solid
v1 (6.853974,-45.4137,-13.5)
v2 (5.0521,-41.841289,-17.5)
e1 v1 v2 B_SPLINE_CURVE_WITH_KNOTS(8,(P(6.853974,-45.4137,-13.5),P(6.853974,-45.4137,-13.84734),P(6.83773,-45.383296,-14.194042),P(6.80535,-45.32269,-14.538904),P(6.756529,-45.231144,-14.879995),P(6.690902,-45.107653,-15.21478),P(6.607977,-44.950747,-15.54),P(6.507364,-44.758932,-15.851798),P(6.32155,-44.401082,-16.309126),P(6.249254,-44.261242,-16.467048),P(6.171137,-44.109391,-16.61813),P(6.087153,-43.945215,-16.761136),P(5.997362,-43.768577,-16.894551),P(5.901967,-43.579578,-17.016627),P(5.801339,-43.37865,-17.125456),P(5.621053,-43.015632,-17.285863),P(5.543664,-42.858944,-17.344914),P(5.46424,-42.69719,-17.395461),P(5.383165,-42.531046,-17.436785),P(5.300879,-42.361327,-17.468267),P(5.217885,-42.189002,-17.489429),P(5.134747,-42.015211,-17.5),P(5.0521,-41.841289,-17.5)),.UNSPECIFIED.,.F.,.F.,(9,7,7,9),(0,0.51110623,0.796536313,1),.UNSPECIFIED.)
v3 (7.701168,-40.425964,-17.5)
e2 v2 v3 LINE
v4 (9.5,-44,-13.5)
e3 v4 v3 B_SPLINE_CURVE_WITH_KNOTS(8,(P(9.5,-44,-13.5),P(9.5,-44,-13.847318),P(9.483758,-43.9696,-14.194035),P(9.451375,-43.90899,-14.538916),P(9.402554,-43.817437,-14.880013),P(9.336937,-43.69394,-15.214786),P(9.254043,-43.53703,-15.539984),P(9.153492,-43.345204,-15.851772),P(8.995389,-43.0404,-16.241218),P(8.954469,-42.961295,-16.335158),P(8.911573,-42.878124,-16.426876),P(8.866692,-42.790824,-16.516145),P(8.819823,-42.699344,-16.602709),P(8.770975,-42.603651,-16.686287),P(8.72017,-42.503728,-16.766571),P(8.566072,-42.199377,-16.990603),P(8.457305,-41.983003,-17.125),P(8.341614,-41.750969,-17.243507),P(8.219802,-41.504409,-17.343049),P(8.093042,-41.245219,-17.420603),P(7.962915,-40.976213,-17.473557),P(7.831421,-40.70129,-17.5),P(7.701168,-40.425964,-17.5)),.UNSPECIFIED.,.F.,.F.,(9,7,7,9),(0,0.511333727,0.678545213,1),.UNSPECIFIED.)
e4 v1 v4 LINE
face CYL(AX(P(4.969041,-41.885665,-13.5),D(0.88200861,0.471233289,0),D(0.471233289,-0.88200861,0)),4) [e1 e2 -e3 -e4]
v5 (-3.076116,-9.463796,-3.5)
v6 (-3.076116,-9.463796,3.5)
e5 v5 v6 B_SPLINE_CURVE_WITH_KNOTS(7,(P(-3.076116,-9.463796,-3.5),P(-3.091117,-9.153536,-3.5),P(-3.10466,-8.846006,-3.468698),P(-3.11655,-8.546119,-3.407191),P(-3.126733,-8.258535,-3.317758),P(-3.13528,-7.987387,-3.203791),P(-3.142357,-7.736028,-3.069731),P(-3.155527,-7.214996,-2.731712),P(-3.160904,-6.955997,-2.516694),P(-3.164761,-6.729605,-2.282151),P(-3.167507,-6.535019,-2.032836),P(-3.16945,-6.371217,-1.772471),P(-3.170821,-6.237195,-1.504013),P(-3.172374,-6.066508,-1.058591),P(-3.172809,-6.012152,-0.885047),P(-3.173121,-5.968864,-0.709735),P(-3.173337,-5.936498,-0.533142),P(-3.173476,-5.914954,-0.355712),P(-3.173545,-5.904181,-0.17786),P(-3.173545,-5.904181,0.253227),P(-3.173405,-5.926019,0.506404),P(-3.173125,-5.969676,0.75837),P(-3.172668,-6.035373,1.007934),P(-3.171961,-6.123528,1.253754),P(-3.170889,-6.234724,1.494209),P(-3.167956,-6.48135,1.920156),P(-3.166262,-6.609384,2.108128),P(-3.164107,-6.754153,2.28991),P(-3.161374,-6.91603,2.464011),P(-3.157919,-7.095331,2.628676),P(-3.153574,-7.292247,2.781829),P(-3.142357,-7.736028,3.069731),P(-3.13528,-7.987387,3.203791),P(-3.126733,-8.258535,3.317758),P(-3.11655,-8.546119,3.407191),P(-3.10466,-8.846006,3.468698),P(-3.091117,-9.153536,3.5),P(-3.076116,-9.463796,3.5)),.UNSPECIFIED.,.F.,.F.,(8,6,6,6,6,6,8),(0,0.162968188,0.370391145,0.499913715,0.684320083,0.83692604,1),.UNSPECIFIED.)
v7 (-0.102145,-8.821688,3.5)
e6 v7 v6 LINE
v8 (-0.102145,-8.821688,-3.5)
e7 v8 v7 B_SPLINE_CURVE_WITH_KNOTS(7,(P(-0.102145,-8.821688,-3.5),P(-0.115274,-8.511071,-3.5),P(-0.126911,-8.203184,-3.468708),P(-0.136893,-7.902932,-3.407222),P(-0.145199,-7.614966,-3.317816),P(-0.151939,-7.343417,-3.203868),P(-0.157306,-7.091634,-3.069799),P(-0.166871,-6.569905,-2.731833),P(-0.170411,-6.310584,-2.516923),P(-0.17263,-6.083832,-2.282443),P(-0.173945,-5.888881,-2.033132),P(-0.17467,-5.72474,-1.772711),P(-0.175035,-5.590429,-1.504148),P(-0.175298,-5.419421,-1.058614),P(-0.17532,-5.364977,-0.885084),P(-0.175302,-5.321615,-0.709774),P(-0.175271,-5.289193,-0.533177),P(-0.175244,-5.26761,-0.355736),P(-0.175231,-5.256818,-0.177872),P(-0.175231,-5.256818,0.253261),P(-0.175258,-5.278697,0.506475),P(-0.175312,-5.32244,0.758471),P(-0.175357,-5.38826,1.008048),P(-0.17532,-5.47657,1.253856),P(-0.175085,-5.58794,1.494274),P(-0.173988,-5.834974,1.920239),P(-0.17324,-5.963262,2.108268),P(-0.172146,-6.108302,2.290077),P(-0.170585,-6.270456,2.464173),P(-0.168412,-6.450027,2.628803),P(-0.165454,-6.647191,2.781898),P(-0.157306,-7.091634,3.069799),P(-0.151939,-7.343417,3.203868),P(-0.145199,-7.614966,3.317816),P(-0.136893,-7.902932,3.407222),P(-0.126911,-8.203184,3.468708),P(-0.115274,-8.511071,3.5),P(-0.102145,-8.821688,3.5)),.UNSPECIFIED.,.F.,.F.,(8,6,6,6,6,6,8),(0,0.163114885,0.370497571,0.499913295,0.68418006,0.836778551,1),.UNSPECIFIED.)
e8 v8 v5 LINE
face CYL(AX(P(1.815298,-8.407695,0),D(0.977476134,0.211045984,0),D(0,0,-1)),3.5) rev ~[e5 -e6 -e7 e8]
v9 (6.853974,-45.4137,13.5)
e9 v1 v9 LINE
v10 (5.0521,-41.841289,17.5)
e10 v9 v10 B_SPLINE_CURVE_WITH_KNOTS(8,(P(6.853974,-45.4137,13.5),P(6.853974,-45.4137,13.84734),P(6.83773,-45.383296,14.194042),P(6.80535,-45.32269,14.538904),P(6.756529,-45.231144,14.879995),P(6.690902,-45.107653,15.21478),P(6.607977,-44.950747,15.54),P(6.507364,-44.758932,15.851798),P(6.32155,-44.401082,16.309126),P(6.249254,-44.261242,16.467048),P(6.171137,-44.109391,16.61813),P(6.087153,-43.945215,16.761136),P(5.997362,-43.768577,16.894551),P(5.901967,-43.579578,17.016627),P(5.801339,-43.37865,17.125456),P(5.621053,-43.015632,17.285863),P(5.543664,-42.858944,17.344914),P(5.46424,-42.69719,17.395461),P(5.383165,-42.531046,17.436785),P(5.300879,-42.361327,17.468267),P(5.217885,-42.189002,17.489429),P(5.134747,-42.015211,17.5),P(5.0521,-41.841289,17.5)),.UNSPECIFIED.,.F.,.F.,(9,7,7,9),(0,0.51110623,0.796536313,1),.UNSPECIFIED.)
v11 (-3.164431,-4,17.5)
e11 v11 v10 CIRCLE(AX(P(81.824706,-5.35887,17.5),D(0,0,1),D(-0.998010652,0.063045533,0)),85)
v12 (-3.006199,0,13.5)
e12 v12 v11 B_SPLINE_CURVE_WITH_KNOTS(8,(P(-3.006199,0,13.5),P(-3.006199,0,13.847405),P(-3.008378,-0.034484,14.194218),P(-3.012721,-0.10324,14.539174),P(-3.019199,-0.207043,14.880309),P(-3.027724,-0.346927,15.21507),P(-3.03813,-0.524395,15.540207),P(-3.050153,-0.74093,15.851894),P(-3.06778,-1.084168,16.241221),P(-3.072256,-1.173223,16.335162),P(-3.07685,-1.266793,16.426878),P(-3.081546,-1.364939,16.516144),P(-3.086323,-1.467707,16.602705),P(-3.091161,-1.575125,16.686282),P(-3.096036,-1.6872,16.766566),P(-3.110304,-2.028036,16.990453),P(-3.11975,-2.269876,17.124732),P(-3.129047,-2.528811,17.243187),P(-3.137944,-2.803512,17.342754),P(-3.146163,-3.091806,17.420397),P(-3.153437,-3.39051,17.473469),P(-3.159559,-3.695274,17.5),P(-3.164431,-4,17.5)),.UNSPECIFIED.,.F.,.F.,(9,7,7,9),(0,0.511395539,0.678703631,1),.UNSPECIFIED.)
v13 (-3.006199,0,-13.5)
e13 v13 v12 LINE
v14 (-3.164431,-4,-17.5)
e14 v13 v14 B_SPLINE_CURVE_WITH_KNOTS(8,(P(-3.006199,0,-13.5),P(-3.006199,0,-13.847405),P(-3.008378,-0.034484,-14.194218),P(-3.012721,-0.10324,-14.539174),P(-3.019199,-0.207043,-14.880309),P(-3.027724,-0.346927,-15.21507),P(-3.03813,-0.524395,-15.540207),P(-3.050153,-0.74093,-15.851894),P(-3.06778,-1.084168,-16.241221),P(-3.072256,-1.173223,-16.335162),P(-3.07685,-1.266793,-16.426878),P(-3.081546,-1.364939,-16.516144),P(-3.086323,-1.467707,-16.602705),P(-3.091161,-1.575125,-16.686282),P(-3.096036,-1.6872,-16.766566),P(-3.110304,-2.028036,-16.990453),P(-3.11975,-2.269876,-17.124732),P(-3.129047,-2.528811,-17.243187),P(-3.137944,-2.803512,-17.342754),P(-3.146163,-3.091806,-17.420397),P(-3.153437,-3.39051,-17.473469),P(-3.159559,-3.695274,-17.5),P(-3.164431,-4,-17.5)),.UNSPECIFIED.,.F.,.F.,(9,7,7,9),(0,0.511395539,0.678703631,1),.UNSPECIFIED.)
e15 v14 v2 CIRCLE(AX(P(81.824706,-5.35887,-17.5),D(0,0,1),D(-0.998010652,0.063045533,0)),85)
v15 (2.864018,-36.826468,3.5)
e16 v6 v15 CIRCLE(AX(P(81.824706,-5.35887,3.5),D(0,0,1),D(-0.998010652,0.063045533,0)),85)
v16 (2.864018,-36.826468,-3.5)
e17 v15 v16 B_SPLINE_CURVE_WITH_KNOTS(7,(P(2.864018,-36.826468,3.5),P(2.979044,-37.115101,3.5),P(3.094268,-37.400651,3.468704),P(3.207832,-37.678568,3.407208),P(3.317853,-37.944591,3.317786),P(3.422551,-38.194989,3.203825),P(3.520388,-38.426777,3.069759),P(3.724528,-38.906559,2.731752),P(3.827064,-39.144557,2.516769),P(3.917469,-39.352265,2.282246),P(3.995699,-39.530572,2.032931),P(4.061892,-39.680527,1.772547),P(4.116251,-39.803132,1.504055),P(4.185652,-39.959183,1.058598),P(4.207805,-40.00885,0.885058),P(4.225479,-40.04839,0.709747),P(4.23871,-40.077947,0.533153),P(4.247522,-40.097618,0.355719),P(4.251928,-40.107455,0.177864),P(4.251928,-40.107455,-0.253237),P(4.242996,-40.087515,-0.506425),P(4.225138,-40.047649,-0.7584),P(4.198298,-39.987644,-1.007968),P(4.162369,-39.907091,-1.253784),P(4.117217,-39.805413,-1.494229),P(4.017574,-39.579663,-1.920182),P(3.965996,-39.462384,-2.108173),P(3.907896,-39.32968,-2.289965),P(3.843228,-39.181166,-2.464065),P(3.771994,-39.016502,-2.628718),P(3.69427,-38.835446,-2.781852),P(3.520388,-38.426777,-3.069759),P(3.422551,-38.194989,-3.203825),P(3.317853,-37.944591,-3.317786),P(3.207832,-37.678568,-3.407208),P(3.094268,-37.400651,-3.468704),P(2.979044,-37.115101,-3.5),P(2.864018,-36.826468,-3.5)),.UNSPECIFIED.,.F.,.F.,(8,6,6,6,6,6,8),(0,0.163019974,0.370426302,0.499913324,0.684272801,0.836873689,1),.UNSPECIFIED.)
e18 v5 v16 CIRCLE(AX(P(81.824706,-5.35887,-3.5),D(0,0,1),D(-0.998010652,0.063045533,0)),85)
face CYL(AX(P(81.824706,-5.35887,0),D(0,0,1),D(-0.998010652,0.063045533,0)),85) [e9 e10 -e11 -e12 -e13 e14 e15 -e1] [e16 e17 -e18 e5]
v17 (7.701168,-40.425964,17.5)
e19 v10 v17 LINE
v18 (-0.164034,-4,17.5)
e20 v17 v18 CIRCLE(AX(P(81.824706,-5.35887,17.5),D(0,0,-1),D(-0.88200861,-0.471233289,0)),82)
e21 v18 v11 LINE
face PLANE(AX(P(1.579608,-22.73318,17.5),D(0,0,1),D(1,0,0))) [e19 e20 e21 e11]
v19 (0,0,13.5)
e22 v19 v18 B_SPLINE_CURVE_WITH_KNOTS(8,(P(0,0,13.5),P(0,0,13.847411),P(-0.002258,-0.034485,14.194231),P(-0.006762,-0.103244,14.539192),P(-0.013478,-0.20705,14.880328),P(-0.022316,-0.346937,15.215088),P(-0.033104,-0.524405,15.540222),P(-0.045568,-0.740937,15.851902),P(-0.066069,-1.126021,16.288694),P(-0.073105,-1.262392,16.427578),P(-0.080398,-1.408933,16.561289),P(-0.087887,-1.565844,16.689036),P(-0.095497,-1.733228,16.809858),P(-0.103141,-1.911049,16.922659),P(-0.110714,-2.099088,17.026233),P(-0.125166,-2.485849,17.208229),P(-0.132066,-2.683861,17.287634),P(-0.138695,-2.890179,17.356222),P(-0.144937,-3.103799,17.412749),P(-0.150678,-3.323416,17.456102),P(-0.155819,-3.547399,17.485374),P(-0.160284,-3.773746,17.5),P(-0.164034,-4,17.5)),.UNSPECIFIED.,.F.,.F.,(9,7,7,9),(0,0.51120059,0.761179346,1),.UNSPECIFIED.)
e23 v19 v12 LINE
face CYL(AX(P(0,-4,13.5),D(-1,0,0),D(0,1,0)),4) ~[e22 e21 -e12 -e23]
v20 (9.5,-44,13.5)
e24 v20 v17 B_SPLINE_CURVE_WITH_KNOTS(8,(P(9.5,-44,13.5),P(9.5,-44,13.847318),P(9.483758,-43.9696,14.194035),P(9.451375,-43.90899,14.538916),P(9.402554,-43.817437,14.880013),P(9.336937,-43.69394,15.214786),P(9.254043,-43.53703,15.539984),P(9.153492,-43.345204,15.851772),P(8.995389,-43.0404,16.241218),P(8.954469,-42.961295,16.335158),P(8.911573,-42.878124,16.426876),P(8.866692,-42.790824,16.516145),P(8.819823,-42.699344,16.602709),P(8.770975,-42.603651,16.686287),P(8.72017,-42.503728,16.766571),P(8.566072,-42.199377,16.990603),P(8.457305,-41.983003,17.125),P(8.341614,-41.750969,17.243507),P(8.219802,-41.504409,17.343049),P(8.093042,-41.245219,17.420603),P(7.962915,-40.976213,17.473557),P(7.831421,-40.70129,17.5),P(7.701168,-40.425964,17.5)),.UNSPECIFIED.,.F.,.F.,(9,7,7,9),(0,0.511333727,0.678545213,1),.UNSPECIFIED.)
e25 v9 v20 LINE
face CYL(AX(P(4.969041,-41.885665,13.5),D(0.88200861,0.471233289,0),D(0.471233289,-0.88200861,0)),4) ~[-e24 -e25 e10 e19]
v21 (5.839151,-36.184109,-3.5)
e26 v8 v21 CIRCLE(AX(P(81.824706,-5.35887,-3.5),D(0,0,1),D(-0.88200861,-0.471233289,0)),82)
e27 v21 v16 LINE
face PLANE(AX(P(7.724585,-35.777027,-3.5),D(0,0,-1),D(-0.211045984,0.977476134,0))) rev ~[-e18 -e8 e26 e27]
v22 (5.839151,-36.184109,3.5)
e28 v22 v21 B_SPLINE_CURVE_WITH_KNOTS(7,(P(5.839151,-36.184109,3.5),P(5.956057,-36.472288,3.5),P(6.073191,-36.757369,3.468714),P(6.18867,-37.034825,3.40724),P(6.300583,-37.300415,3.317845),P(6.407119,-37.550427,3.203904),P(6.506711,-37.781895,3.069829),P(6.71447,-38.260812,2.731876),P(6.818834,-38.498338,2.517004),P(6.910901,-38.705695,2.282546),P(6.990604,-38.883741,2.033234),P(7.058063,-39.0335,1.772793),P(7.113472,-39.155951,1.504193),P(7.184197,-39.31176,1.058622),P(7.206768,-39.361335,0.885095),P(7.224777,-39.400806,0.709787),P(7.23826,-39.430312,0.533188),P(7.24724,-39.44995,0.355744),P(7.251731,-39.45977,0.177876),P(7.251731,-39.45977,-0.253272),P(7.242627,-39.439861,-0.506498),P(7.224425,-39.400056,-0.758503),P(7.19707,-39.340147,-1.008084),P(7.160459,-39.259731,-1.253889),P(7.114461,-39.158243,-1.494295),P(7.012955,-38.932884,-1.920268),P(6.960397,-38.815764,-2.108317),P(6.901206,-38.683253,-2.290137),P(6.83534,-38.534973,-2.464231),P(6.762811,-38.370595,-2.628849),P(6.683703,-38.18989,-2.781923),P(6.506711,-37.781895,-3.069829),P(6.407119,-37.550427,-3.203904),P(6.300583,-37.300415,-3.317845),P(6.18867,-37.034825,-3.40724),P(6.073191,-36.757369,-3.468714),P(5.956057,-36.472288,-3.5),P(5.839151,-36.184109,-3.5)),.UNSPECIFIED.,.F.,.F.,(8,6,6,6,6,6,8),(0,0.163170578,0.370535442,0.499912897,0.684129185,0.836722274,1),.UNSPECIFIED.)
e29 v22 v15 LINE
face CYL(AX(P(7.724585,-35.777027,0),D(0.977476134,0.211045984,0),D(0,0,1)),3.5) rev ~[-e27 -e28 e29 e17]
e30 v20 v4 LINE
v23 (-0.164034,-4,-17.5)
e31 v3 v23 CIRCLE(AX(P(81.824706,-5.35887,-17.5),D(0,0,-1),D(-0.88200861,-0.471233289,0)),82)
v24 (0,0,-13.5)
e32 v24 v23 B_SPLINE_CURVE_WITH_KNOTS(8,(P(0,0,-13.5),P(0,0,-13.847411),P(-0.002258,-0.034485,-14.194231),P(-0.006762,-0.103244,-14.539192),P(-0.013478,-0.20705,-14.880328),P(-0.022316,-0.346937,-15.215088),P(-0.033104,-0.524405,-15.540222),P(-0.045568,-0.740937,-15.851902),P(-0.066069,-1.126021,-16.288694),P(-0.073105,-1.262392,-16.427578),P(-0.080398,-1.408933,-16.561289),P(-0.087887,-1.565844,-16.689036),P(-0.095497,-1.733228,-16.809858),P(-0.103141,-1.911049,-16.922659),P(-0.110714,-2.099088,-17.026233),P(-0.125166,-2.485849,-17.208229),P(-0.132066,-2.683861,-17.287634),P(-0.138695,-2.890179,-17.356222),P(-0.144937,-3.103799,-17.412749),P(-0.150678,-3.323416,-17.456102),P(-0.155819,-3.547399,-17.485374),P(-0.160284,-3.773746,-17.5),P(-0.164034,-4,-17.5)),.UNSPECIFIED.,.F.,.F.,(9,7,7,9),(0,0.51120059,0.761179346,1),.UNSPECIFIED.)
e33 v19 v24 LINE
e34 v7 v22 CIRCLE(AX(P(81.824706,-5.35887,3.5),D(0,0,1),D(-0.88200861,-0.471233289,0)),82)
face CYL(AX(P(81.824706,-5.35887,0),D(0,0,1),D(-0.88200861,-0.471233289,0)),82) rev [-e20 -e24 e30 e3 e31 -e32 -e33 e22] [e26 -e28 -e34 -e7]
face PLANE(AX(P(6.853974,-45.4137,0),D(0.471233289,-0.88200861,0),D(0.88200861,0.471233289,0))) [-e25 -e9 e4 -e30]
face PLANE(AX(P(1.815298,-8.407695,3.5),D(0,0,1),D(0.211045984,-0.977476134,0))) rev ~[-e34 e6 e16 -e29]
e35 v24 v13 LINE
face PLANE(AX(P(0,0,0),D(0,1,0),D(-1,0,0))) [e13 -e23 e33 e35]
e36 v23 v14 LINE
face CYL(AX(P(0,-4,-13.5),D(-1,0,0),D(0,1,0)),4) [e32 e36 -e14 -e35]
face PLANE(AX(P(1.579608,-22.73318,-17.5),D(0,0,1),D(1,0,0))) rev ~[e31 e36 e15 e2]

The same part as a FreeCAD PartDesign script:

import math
import FreeCAD as App
import Part
import Sketcher


def edges_at(feature, points):
    """Names of the edges that pass closest to the given points."""
    edges = feature.Shape.Edges
    near = lambda p: min(range(len(edges)), key=lambda i: edges[i].distToShape(Part.Vertex(*p))[0])
    return sorted({f"Edge{near(p) + 1}" for p in points})

doc = App.newDocument("Part")
body = doc.addObject("PartDesign::Body", "Body")

# Sketch on XY plane
sketch1 = body.newObject("Sketcher::SketchObject", "Sketch")
sketch1.AttachmentSupport = (doc.getObject("XY_Plane"), [""])
sketch1.MapMode = "FlatFace"
sketch1.addGeometry(Part.LineSegment(App.Vector(0, 0, 0), App.Vector(-3, 0, 0)), False)
sketch1.addGeometry(Part.ArcOfCircle(Part.Circle(App.Vector(81.8, -5.4, 0), App.Vector(0, 0, 1), 85), math.radians(176), math.radians(208)), False)
sketch1.addGeometry(Part.LineSegment(App.Vector(6.9, -45.4, 0), App.Vector(9.5, -44, 0)), False)
sketch1.addGeometry(Part.ArcOfCircle(Part.Circle(App.Vector(81.8, -5.4, 0), App.Vector(0, 0, 1), 82), math.radians(176), math.radians(208)), False)
sketch1.addConstraint(Sketcher.Constraint("Coincident", 0, 2, 1, 1))
sketch1.addConstraint(Sketcher.Constraint("Coincident", 1, 2, 2, 1))
sketch1.addConstraint(Sketcher.Constraint("Coincident", 2, 2, 3, 2))
sketch1.addConstraint(Sketcher.Constraint("Coincident", 3, 1, 0, 1))
sketch1.addConstraint(Sketcher.Constraint("Horizontal", 0))
sketch1.addConstraint(Sketcher.Constraint("Coincident", 3, 1, -1, 1))
sketch1.addConstraint(Sketcher.Constraint("Coincident", 3, 3, 1, 3))
sketch1.addConstraint(Sketcher.Constraint("Radius", 1, 85.0))
sketch1.addConstraint(Sketcher.Constraint("Radius", 3, 82.0))
sketch1.addConstraint(Sketcher.Constraint("DistanceY", 2, 2, -1, 1, 44.0))
sketch1.addConstraint(Sketcher.Constraint("DistanceX", -1, 1, 2, 2, 9.5))
sketch1.addConstraint(Sketcher.Constraint("DistanceY", 1, 2, -1, 1, 45.4137))
pad1 = body.newObject("PartDesign::Pad", "Pad")
pad1.Profile = sketch1
pad1.Length = 35
pad1.Midplane = True
doc.recompute()

fillet = body.newObject("PartDesign::Fillet", "Fillet")
fillet.Base = (pad1, edges_at(pad1, [
    (-1.503, 0, 17.5),
    (-1.503, 0, -17.5),
    (8.177, -44.707, -17.5),
    (8.177, -44.707, 17.5),
]))
fillet.Radius = 4

# Sketch on an angled plane
sketch2 = body.newObject("Sketcher::SketchObject", "Sketch001")
sketch2.Placement = App.Placement(App.Vector(0, 0, 0), App.Rotation(App.Vector(0, 0, 1), App.Vector(-0.211045984, 0.977476134, 0), App.Vector(-0.977476134, -0.211045984, 0), "ZXY"))
sketch2.addGeometry(Part.LineSegment(App.Vector(-3.5, -8.6, 0), App.Vector(-3.5, -36.6, 0)), False)
sketch2.addGeometry(Part.ArcOfCircle(Part.Circle(App.Vector(0, -36.6, 0), App.Vector(0, 0, 1), 3.5), math.radians(180), math.radians(360)), False)
sketch2.addGeometry(Part.LineSegment(App.Vector(3.5, -36.6, 0), App.Vector(3.5, -8.6, 0)), False)
sketch2.addGeometry(Part.ArcOfCircle(Part.Circle(App.Vector(0, -8.6, 0), App.Vector(0, 0, 1), 3.5), math.radians(0), math.radians(180)), False)
sketch2.addConstraint(Sketcher.Constraint("Tangent", 0, 2, 1, 1))
sketch2.addConstraint(Sketcher.Constraint("Tangent", 1, 2, 2, 1))
sketch2.addConstraint(Sketcher.Constraint("Tangent", 2, 2, 3, 1))
sketch2.addConstraint(Sketcher.Constraint("Tangent", 3, 2, 0, 1))
sketch2.addConstraint(Sketcher.Constraint("Vertical", 0))
sketch2.addConstraint(Sketcher.Constraint("Vertical", 2))
sketch2.addConstraint(Sketcher.Constraint("PointOnObject", 1, 3, -2))
sketch2.addConstraint(Sketcher.Constraint("Radius", 1, 3.5))
sketch2.addConstraint(Sketcher.Constraint("DistanceY", 0, 2, 0, 1, 28.0))
sketch2.addConstraint(Sketcher.Constraint("DistanceY", 1, 3, -1, 1, 36.601433))
pocket1 = body.newObject("PartDesign::Pocket", "Pocket")
pocket1.Profile = sketch2
pocket1.Length = 35
pocket1.Reversed = True

doc.recompute()
